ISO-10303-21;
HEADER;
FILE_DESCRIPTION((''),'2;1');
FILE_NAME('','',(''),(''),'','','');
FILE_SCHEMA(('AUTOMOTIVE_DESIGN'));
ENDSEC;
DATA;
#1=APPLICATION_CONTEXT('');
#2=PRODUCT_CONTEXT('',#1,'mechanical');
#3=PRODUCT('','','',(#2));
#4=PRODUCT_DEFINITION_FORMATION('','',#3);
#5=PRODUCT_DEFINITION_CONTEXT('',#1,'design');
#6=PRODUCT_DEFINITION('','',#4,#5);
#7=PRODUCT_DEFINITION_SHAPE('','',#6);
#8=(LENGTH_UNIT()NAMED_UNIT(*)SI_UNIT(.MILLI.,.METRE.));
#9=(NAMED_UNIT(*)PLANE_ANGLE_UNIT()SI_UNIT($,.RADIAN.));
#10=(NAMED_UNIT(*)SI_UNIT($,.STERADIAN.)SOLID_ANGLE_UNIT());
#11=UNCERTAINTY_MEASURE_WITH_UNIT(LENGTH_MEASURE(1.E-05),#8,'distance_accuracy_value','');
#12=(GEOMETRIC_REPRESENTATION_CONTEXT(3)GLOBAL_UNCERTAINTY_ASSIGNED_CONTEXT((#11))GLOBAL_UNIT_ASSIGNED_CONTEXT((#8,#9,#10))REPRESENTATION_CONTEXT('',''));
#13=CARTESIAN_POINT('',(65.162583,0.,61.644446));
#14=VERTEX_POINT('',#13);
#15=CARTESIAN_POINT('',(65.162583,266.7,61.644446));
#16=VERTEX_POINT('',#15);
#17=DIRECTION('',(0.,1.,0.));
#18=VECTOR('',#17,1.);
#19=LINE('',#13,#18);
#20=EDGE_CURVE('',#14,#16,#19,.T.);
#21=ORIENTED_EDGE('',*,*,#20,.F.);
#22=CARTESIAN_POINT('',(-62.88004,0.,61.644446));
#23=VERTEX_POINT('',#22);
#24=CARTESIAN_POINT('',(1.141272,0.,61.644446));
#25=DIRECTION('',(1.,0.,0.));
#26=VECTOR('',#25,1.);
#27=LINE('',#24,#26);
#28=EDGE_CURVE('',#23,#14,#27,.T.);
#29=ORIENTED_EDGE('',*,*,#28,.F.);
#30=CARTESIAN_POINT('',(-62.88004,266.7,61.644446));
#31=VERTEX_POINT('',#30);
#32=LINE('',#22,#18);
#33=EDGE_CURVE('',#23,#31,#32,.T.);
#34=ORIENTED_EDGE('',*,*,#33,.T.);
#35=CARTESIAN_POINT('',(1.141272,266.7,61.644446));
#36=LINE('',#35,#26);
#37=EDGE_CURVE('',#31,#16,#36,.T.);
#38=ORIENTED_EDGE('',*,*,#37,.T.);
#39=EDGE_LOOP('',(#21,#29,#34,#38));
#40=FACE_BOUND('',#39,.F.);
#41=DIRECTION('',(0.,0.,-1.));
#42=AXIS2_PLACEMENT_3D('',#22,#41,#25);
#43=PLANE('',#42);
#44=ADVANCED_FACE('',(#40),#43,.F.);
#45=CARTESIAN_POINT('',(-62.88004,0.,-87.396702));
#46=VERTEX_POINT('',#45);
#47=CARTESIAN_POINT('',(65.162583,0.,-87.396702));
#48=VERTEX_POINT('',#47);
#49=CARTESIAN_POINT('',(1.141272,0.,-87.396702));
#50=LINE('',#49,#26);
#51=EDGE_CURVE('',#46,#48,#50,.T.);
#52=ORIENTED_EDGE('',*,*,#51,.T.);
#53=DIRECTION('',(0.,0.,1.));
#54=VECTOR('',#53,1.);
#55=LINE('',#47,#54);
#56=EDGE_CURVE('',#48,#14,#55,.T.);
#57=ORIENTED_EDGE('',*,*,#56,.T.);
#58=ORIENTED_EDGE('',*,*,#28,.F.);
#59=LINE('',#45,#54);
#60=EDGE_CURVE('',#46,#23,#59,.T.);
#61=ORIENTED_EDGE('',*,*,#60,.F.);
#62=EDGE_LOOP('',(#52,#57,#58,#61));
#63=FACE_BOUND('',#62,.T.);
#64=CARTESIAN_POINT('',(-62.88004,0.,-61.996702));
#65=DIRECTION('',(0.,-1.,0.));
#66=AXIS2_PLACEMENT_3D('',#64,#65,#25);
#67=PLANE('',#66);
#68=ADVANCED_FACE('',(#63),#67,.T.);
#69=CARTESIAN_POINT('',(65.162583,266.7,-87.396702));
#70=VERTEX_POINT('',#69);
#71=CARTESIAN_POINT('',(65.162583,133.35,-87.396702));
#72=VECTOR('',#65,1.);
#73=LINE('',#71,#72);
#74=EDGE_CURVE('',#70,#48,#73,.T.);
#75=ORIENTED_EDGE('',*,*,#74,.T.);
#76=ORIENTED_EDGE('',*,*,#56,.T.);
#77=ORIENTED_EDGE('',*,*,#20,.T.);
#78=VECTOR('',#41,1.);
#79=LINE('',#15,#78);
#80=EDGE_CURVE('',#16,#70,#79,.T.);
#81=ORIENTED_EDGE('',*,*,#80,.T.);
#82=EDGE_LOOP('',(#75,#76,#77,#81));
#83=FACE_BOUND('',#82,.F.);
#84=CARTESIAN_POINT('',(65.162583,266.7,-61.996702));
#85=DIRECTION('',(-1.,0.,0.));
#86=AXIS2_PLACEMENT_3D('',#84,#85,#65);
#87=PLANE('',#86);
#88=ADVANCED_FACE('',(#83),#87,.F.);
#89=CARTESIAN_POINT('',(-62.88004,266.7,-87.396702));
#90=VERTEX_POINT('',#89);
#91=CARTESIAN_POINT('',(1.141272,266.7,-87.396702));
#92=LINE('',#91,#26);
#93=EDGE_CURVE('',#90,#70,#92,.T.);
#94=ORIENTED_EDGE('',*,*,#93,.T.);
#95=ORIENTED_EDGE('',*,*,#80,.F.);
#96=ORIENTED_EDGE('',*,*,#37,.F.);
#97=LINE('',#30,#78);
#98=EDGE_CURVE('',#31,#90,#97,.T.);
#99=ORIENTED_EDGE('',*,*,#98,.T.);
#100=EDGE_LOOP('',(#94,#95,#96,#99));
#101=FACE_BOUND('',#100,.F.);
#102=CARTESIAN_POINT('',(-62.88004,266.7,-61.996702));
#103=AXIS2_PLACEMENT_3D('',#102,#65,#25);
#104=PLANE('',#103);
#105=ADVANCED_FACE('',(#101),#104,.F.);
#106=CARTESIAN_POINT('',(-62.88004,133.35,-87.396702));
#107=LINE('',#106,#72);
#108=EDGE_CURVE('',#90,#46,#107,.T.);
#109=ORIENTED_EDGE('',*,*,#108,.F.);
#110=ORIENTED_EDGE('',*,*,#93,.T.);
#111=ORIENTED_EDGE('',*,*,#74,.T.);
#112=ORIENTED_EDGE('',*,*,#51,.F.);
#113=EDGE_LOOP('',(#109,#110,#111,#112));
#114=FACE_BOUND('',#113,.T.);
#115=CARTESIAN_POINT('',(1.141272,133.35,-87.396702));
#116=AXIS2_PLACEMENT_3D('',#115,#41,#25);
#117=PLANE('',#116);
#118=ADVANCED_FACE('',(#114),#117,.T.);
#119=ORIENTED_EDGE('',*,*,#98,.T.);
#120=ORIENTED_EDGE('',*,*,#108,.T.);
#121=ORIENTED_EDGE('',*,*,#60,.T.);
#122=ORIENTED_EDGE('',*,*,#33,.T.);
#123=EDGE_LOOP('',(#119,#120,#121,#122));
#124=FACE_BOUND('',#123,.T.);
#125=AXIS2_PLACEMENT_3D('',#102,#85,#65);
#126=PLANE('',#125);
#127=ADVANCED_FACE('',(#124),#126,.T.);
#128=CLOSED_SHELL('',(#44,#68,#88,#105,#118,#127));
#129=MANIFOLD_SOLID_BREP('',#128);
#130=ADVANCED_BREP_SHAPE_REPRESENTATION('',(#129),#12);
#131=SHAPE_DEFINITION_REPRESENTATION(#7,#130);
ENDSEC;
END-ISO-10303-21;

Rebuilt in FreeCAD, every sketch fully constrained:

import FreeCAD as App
import Part
import Sketcher

V = App.Vector
Q = App.Units.Quantity


def add_polygon(sketch, points):
    """Adds a closed chain of lines whose ends are joined by coincident constraints."""
    first, n = sketch.GeometryCount, len(points)
    for a, b in zip(points, points[1:] + points[:1]):
        sketch.addGeometry(Part.LineSegment(App.Vector(*a, 0), App.Vector(*b, 0)), False)
    for i in range(n):
        sketch.addConstraint(Sketcher.Constraint("Coincident", first + i, 2, first + (i + 1) % n, 1))

doc = App.newDocument("Part")
params = doc.addObject("Spreadsheet::Sheet", "Params")
for row, (alias, value) in enumerate([
    ("pad1_length", "10.5 in"),
    ("sketch2_height", "10.5 in"),
    ("pad2_length", "1 in"),
], start=1):
    params.set(f"A{row}", alias)
    params.set(f"B{row}", "=" + value)
    params.setAlias(f"B{row}", alias)

body = doc.addObject("PartDesign::Body", "Body")

# Sketch on XZ plane
sketch1 = body.newObject("Sketcher::SketchObject", "Sketch")
sketch1.AttachmentSupport = (doc.getObject("XZ_Plane"), [""])
sketch1.MapMode = "FlatFace"
add_polygon(sketch1, [(-63, 62), (-63, -62), (65, -62), (65, 62)])  # lines 0-3
sketch1.addConstraint(Sketcher.Constraint("Vertical", 0))
sketch1.addConstraint(Sketcher.Constraint("Horizontal", 1))
sketch1.addConstraint(Sketcher.Constraint("Vertical", 2))
sketch1.addConstraint(Sketcher.Constraint("Horizontal", 3))
sketch1.addConstraint(Sketcher.Constraint("DistanceY", 0, 2, 0, 1, Q("123.641148 mm")))
sketch1.addConstraint(Sketcher.Constraint("DistanceX", 1, 1, 1, 2, Q("128.042623 mm")))
sketch1.addConstraint(Sketcher.Constraint("DistanceX", 0, 2, -1, 1, Q("62.88004 mm")))
sketch1.addConstraint(Sketcher.Constraint("DistanceY", 0, 2, -1, 1, Q("61.996702 mm")))
pad1 = body.newObject("PartDesign::Pad", "Pad")
pad1.Profile = sketch1
pad1.setExpression("Length", "Params.pad1_length")
pad1.Reversed = True

# Sketch on XY plane
sketch2 = body.newObject("Sketcher::SketchObject", "Sketch001")
sketch2.AttachmentSupport = (doc.getObject("XY_Plane"), [""])
sketch2.MapMode = "FlatFace"
sketch2.AttachmentOffset = App.Placement(V(0, 0, -61.996702), App.Rotation())
add_polygon(sketch2, [(-63, 0), (-63, 267), (65, 267), (65, 0)])  # lines 0-3
sketch2.addConstraint(Sketcher.Constraint("Vertical", 0))
sketch2.addConstraint(Sketcher.Constraint("Horizontal", 1))
sketch2.addConstraint(Sketcher.Constraint("Vertical", 2))
sketch2.addConstraint(Sketcher.Constraint("Horizontal", 3))
sketch2.addConstraint(Sketcher.Constraint("PointOnObject", 2, 2, -1))
sketch2.addConstraint(Sketcher.Constraint("DistanceY", 0, 1, 0, 2, Q("10.5 in")))
sketch2.addConstraint(Sketcher.Constraint("DistanceX", 1, 1, 1, 2, Q("128.042623 mm")))
sketch2.addConstraint(Sketcher.Constraint("DistanceX", 0, 2, -1, 1, Q("62.88004 mm")))
sketch2.setExpression("Constraints[9]", "Params.sketch2_height")
pad2 = body.newObject("PartDesign::Pad", "Pad001")
pad2.Profile = sketch2
pad2.setExpression("Length", "Params.pad2_length")
pad2.Reversed = True

doc.recompute()
